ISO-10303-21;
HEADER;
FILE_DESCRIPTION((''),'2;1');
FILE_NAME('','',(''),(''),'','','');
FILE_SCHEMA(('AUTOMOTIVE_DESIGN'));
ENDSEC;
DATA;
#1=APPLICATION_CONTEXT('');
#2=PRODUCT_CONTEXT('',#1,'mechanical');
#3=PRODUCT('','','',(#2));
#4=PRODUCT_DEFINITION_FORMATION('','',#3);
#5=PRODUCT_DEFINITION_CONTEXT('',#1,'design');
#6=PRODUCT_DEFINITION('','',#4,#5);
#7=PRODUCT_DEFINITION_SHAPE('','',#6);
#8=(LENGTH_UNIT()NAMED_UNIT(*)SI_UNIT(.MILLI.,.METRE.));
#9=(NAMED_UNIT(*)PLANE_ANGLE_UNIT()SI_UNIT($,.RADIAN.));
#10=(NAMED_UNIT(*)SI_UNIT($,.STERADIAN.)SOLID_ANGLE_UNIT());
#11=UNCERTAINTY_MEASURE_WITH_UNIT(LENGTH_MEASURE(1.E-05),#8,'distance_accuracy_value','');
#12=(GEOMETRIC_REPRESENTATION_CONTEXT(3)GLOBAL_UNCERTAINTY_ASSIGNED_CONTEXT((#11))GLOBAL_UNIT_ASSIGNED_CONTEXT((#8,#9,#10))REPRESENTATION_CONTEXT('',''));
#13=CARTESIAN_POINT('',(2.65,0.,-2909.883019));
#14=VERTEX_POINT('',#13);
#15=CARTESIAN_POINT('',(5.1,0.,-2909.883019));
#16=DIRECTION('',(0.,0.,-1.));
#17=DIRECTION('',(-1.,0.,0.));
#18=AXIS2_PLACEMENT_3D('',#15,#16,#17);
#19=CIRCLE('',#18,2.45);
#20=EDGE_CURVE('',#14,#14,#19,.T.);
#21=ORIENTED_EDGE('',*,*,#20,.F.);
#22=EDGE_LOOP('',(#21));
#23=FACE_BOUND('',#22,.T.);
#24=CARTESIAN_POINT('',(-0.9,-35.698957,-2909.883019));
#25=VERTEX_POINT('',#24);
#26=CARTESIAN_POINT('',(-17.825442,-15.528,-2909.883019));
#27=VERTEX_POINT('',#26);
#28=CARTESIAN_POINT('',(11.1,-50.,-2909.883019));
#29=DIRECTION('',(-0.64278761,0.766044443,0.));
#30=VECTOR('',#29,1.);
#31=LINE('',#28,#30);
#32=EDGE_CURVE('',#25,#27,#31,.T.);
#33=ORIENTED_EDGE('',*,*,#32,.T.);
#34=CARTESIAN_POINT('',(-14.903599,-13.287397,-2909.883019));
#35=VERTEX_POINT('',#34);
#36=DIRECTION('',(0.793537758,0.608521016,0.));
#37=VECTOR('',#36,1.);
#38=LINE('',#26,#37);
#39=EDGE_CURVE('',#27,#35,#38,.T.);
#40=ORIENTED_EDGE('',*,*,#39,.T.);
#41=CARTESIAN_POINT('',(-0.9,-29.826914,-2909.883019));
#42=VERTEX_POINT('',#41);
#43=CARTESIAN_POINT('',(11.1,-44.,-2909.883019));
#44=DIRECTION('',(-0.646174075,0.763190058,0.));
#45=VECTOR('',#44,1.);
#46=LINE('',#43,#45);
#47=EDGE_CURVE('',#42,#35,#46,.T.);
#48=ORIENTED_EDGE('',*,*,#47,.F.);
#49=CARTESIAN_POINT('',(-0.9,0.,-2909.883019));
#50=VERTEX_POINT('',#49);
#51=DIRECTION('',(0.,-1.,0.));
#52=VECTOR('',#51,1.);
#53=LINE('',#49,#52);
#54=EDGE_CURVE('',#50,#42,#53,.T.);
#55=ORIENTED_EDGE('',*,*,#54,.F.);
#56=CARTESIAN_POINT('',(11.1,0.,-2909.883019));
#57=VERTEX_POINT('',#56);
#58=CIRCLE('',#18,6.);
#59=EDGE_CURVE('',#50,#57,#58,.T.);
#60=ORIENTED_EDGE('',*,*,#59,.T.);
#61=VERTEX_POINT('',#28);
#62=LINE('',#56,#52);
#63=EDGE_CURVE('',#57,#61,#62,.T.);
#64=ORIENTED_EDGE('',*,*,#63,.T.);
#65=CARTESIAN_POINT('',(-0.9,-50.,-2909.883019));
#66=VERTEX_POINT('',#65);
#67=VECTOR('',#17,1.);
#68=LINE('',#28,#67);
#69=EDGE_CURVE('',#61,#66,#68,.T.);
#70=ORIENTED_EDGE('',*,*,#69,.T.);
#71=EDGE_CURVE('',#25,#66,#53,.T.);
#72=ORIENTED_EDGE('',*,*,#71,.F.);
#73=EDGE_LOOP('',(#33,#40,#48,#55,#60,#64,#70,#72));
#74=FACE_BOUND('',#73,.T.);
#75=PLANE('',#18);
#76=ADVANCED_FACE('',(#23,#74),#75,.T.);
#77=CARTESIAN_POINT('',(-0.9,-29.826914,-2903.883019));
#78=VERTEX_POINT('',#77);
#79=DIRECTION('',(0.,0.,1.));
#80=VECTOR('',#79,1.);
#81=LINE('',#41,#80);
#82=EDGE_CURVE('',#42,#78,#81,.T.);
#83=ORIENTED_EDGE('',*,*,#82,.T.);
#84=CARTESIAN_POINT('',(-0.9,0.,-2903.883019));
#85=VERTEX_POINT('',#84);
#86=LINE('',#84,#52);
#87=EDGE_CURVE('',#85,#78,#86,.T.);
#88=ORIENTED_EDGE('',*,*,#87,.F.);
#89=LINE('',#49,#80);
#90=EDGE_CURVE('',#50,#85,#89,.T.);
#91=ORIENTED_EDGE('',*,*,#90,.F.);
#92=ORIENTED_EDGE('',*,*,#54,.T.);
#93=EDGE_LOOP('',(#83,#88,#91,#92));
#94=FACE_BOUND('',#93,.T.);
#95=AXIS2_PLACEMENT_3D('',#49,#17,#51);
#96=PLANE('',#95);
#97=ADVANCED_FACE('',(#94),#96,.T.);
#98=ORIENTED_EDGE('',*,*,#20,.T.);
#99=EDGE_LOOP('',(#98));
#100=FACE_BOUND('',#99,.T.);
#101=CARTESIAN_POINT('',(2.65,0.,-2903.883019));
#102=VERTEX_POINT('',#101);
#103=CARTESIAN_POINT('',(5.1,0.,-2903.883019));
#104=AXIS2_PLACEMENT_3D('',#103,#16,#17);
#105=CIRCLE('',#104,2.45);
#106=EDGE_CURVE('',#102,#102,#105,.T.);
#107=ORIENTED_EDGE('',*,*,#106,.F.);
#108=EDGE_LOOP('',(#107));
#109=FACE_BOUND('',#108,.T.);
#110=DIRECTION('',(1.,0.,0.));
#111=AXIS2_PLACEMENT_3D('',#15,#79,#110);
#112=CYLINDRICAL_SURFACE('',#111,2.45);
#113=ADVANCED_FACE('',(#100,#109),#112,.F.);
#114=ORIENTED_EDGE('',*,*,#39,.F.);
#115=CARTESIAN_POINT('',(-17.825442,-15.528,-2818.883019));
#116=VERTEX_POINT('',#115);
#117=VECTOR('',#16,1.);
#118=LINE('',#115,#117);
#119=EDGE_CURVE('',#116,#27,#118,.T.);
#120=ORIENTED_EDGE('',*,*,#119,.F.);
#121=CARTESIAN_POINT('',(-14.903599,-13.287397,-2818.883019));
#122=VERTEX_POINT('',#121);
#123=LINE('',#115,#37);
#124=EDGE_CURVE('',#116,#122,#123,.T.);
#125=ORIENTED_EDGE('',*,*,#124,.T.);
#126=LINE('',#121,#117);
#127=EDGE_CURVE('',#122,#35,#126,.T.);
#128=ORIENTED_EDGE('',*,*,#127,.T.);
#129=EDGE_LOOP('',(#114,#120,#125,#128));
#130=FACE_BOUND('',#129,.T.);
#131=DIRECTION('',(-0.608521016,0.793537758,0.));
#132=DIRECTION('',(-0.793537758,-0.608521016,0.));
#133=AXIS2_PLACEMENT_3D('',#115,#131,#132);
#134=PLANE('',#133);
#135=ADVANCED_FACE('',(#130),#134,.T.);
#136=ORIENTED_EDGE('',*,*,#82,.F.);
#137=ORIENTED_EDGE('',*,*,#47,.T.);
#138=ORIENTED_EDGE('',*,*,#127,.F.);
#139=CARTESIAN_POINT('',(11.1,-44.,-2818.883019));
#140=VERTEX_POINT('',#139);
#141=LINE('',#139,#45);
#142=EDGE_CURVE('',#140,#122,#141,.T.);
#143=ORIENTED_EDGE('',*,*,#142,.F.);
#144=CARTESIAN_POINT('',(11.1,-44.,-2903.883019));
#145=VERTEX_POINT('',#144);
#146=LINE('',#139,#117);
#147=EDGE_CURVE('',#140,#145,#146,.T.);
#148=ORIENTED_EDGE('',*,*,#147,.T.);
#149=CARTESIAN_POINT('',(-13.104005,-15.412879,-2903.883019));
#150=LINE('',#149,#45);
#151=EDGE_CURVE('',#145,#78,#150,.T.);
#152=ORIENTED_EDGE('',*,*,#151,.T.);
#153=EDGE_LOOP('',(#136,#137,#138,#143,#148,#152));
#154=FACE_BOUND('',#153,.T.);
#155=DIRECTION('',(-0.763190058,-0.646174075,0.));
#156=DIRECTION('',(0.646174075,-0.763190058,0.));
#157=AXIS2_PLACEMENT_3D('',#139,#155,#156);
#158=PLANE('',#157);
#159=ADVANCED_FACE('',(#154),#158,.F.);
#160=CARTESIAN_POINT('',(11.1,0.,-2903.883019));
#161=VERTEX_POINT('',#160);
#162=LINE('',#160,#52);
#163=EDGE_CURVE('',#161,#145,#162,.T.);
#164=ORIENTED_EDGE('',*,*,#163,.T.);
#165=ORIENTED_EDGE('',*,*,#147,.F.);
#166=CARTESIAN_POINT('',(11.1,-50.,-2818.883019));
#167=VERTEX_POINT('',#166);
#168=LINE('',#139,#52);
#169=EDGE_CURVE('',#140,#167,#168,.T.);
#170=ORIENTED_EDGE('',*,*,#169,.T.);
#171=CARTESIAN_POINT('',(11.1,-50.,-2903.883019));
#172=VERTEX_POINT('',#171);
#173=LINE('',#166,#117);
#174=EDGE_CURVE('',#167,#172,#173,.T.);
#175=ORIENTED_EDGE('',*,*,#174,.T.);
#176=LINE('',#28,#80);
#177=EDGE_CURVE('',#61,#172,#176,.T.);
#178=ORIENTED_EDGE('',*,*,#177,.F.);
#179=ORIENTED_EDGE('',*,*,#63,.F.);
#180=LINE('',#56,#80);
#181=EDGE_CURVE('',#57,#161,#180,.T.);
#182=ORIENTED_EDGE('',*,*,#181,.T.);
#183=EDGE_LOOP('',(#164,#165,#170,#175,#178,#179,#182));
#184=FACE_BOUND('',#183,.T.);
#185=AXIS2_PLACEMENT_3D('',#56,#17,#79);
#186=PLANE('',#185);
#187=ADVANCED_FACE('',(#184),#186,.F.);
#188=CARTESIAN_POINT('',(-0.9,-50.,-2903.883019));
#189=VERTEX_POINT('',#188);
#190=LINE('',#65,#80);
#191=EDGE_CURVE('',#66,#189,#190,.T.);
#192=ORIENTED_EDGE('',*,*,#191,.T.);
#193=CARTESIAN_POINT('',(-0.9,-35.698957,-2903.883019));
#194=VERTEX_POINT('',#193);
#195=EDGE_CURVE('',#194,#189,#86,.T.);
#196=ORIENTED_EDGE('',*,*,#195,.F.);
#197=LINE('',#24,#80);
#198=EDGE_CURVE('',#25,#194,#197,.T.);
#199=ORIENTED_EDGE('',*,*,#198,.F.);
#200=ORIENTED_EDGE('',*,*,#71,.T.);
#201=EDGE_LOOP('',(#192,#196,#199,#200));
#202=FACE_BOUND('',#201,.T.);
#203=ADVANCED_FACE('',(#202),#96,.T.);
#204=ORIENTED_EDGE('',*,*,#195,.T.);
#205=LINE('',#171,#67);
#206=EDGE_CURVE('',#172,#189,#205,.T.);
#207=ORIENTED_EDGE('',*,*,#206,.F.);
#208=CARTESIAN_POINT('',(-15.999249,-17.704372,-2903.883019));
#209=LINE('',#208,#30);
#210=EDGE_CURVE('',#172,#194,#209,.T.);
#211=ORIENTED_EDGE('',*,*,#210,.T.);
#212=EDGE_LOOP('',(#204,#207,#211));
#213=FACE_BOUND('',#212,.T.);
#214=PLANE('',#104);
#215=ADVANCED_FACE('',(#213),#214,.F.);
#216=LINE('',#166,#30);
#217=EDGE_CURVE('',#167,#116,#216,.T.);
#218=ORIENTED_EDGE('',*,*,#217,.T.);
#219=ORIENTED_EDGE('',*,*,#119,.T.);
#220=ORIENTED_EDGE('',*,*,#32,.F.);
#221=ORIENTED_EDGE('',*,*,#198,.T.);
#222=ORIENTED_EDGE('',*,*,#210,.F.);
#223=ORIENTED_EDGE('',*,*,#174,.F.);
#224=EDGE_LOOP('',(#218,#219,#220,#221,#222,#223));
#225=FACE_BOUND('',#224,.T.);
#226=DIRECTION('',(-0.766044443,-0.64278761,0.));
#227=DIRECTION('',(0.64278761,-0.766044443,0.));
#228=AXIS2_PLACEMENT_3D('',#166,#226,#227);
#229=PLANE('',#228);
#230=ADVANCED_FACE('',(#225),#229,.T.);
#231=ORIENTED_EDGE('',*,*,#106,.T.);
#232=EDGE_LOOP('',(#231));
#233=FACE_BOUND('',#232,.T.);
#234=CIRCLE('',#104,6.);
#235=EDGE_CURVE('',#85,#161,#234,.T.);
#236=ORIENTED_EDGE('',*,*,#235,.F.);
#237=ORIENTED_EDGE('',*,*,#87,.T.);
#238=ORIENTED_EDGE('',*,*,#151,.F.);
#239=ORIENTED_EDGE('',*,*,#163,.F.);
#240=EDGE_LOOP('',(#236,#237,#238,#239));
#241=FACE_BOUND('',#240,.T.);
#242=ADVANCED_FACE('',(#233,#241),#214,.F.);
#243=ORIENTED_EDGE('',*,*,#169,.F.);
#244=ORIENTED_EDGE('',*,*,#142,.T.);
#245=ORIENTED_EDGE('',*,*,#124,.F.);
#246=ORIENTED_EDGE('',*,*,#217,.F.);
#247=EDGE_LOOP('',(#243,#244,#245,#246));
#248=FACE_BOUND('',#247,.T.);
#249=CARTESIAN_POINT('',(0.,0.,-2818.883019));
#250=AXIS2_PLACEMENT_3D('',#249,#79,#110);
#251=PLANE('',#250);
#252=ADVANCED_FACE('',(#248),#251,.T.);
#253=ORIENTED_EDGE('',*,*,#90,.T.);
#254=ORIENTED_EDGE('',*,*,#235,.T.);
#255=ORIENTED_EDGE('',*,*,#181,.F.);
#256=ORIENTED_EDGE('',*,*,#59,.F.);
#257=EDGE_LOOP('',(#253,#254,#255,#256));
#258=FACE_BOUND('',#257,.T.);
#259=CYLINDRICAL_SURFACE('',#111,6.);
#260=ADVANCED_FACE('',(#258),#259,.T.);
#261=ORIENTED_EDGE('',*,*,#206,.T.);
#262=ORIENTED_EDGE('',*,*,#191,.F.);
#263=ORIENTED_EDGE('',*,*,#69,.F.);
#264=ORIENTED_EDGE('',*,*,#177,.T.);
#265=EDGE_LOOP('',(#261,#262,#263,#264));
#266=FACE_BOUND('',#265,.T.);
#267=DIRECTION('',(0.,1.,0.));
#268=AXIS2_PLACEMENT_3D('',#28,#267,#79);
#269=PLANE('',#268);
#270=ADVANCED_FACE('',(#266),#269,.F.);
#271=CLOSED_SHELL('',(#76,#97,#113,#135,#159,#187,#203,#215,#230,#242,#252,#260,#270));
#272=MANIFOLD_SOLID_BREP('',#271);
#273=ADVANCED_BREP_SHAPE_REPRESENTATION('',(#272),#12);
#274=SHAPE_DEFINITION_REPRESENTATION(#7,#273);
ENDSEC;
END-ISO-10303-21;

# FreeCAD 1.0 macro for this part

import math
import FreeCAD as App
import Part
import Sketcher
Q = App.Units.Quantity


def add_polygon(sketch, points):
    """Adds a closed chain of lines whose ends are joined by coincident constraints."""
    first, n = sketch.GeometryCount, len(points)
    for a, b in zip(points, points[1:] + points[:1]):
        sketch.addGeometry(Part.LineSegment(App.Vector(*a, 0), App.Vector(*b, 0)), False)
    for i in range(n):
        sketch.addConstraint(Sketcher.Constraint("Coincident", first + i, 2, first + (i + 1) % n, 1))

doc = App.newDocument("Part")
body = doc.addObject("PartDesign::Body", "Body")

# Sketch on XY plane
sketch1 = body.newObject("Sketcher::SketchObject", "Sketch")
sketch1.AttachmentSupport = (doc.getObject("XY_Plane"), [""])
sketch1.MapMode = "FlatFace"
sketch1.AttachmentOffset = App.Placement(App.Vector(0, 0, -2903.883019), App.Rotation())
sketch1.addGeometry([
    Part.LineSegment(App.Vector(11.1, 0, 0), App.Vector(11.1, -50, 0)),  # 0
    Part.LineSegment(App.Vector(11.1, -50, 0), App.Vector(-0.9, -50, 0)),  # 1
    Part.LineSegment(App.Vector(-0.9, -50, 0), App.Vector(-0.9, 0, 0)),  # 2
    Part.ArcOfCircle(Part.Circle(App.Vector(5.1, 0, 0), App.Vector(0, 0, 1), 6), math.radians(0), math.radians(180)),  # 3
    Part.Circle(App.Vector(5.1, 0, 0), App.Vector(0, 0, 1), 2.5),  # 4
], False)
sketch1.addConstraint([
    Sketcher.Constraint("Coincident", 0, 2, 1, 1),
    Sketcher.Constraint("Coincident", 1, 2, 2, 1),
    Sketcher.Constraint("Tangent", 2, 2, 3, 2),
    Sketcher.Constraint("Tangent", 3, 1, 0, 1),
    Sketcher.Constraint("Vertical", 0),
    Sketcher.Constraint("Horizontal", 1),
    Sketcher.Constraint("Vertical", 2),
    Sketcher.Constraint("Coincident", 4, 3, 3, 3),
    Sketcher.Constraint("PointOnObject", 3, 3, -1),
    Sketcher.Constraint("Radius", 3, 6.0),
    Sketcher.Constraint("Diameter", 4, 4.9),
    Sketcher.Constraint("DistanceY", 0, 2, 0, 1, 50.0),
    Sketcher.Constraint("DistanceX", -1, 1, 3, 3, 5.1),
])
pad1 = body.newObject("PartDesign::Pad", "Pad")
pad1.Profile = sketch1
pad1.Length = 6
pad1.Reversed = True

# Sketch on XY plane
sketch2 = body.newObject("Sketcher::SketchObject", "Sketch001")
sketch2.AttachmentSupport = (doc.getObject("XY_Plane"), [""])
sketch2.MapMode = "FlatFace"
sketch2.AttachmentOffset = App.Placement(App.Vector(0, 0, -2909.883019), App.Rotation())
add_polygon(sketch2, [(11.1, -50), (-17.8, -15.5), (-14.9, -13.3), (11.1, -44)])  # lines 0-3
sketch2.addConstraint([
    Sketcher.Constraint("Vertical", 3),
    Sketcher.Constraint("DistanceY", 3, 2, 3, 1, 6.0),
    Sketcher.Constraint("Angle", 0, Q("130 deg")),
    Sketcher.Constraint("Distance", 0, 45.0),
    Sketcher.Constraint("DistanceY", 2, 2, -1, 1, 44.0),
    Sketcher.Constraint("DistanceX", -1, 1, 2, 2, 11.1),
    Sketcher.Constraint("DistanceX", 1, 2, -1, 1, 14.903599),
    Sketcher.Constraint("Distance", 1, 3.682048),
])
pad2 = body.newObject("PartDesign::Pad", "Pad001")
pad2.Profile = sketch2
pad2.Length = 91

# Sketch on XY plane
sketch3 = body.newObject("Sketcher::SketchObject", "Sketch002")
sketch3.AttachmentSupport = (doc.getObject("XY_Plane"), [""])
sketch3.MapMode = "FlatFace"
sketch3.AttachmentOffset = App.Placement(App.Vector(0, 0, -2909.883019), App.Rotation())
add_polygon(sketch3, [(11.1, -50), (9.7, -87.2), (-4.8, -87.2), (12.6, -51.8)])  # lines 0-3
sketch3.addConstraint([
    Sketcher.Constraint("Horizontal", 1),
    Sketcher.Constraint("Angle", 3, Q("130 deg")),
    Sketcher.Constraint("DistanceY", 3, 2, -1, 1, 50.0),
    Sketcher.Constraint("DistanceX", -1, 1, 3, 2, 11.1),
    Sketcher.Constraint("DistanceX", 1, 2, 1, 1, 14.592639),
    Sketcher.Constraint("DistanceX", -1, 1, 2, 2, 12.615201),
    Sketcher.Constraint("DistanceX", -1, 1, 0, 2, 9.748211),
    Sketcher.Constraint("Distance", 0, 37.225306),
])
pocket1 = body.newObject("PartDesign::Pocket", "Pocket")
pocket1.Profile = sketch3
pocket1.Length = 91
pocket1.Reversed = True

doc.recompute()
